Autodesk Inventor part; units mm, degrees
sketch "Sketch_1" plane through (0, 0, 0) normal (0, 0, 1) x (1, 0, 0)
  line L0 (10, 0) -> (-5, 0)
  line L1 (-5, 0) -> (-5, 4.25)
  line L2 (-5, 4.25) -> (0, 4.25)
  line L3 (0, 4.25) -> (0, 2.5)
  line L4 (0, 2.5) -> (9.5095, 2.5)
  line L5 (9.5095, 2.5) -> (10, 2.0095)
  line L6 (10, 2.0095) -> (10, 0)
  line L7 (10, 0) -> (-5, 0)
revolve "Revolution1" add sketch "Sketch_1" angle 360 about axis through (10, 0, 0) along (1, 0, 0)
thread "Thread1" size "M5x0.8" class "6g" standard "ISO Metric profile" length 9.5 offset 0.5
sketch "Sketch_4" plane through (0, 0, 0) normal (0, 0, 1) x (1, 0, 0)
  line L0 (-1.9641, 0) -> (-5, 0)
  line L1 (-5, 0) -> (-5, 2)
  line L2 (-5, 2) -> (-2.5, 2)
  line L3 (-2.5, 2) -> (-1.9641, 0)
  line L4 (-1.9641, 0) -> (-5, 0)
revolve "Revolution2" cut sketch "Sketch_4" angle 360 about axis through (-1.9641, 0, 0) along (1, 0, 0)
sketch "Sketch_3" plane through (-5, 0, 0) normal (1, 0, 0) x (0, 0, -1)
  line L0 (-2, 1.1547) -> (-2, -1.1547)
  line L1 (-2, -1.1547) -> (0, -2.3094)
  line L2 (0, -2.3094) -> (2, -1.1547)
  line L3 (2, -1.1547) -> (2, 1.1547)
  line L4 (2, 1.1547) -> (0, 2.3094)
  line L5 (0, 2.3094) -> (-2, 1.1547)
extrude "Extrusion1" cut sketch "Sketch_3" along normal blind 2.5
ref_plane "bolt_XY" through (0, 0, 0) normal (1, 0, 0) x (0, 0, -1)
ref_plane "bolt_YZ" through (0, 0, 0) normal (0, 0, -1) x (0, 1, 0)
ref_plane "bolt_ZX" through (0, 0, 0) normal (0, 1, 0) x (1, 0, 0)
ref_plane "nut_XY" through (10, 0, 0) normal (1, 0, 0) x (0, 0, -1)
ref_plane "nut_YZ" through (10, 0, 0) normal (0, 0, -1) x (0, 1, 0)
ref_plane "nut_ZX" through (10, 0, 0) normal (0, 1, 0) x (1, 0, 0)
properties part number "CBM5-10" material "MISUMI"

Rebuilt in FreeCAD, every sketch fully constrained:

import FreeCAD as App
import Part
import Sketcher
from FreeCAD import Vector
Q = App.Units.Quantity

doc = App.newDocument("Part")
params = doc.addObject("Spreadsheet::Sheet", "Params")
for row, (alias, value) in enumerate([
    ("sketch1_width", "15 mm"),
    ("sketch1_width2", "5 mm"),
    ("sketch1_height", "1.75 mm"),
    ("sketch1_height2", "4.25 mm"),
    ("revolution_angle", "360 deg"),
    ("sketch2_height", "2 mm"),
    ("sketch2_width", "2.5 mm"),
    ("groove_angle", "360 deg"),
    ("pocket1_length", "2.5 mm"),
], start=1):
    params.set(f"A{row}", alias)
    params.set(f"B{row}", "=" + value)
    params.setAlias(f"B{row}", alias)

body = doc.addObject("PartDesign::Body", "Body")

sketch1 = body.newObject("Sketcher::SketchObject", "Sketch")
sketch1.AttachmentSupport = (doc.getObject("XY_Plane"), [""])
sketch1.MapMode = "FlatFace"
sketch1.addGeometry([
    Part.LineSegment(Vector(-5, 0, 0), Vector(10, 0, 0)),
    Part.LineSegment(Vector(10, 0, 0), Vector(10, 2, 0)),
    Part.LineSegment(Vector(10, 2, 0), Vector(9.5, 2.5, 0)),
    Part.LineSegment(Vector(9.5, 2.5, 0), Vector(0, 2.5, 0)),
    Part.LineSegment(Vector(0, 2.5, 0), Vector(0, 4.2, 0)),
    Part.LineSegment(Vector(0, 4.2, 0), Vector(-5, 4.2, 0)),
    Part.LineSegment(Vector(-5, 4.2, 0), Vector(-5, 0, 0)),
], False)
sketch1.addConstraint([
    Sketcher.Constraint("Coincident", 0, 2, 1, 1),
    Sketcher.Constraint("Coincident", 1, 2, 2, 1),
    Sketcher.Constraint("Coincident", 2, 2, 3, 1),
    Sketcher.Constraint("Coincident", 3, 2, 4, 1),
    Sketcher.Constraint("Coincident", 4, 2, 5, 1),
    Sketcher.Constraint("Coincident", 5, 2, 6, 1),
    Sketcher.Constraint("Coincident", 6, 2, 0, 1),
    Sketcher.Constraint("Horizontal", 0),
    Sketcher.Constraint("Vertical", 1),
    Sketcher.Constraint("Horizontal", 3),
    Sketcher.Constraint("Vertical", 4),
    Sketcher.Constraint("Horizontal", 5),
    Sketcher.Constraint("Vertical", 6),
    Sketcher.Constraint("PointOnObject", 0, 2, -1),
    Sketcher.Constraint("PointOnObject", 3, 2, -2),
    Sketcher.Constraint("DistanceX", 0, 1, 0, 2, Q("15 mm")),
    Sketcher.Constraint("DistanceX", 5, 2, 5, 1, Q("5 mm")),
    Sketcher.Constraint("Angle", 2, Q("135 deg")),
    Sketcher.Constraint("DistanceY", 4, 1, 4, 2, Q("1.75 mm")),
    Sketcher.Constraint("DistanceY", 6, 2, 6, 1, Q("4.25 mm")),
    Sketcher.Constraint("DistanceX", 3, 2, 3, 1, Q("9.5095 mm")),
])
sketch1.setExpression("Constraints[15]", "Params.sketch1_width")
sketch1.setExpression("Constraints[16]", "Params.sketch1_width2")
sketch1.setExpression("Constraints[18]", "Params.sketch1_height")
sketch1.setExpression("Constraints[19]", "Params.sketch1_height2")
revolution = body.newObject("PartDesign::Revolution", "Revolution")
revolution.Profile = sketch1
revolution.ReferenceAxis = (sketch1, ["H_Axis"])
revolution.setExpression("Angle", "Params.revolution_angle")

sketch2 = body.newObject("Sketcher::SketchObject", "Sketch001")
sketch2.AttachmentSupport = (doc.getObject("XY_Plane"), [""])
sketch2.MapMode = "FlatFace"
sketch2.addGeometry([
    Part.LineSegment(Vector(-5, 0, 0), Vector(-2, 0, 0)),
    Part.LineSegment(Vector(-2, 0, 0), Vector(-2.5, 2, 0)),
    Part.LineSegment(Vector(-2.5, 2, 0), Vector(-5, 2, 0)),
    Part.LineSegment(Vector(-5, 2, 0), Vector(-5, 0, 0)),
], False)
sketch2.addConstraint([
    Sketcher.Constraint("Coincident", 0, 2, 1, 1),
    Sketcher.Constraint("Coincident", 1, 2, 2, 1),
    Sketcher.Constraint("Coincident", 2, 2, 3, 1),
    Sketcher.Constraint("Coincident", 3, 2, 0, 1),
    Sketcher.Constraint("Horizontal", 0),
    Sketcher.Constraint("Horizontal", 2),
    Sketcher.Constraint("Vertical", 3),
    Sketcher.Constraint("PointOnObject", 0, 2, -1),
    Sketcher.Constraint("DistanceY", 3, 2, 3, 1, Q("2 mm")),
    Sketcher.Constraint("Angle", 1, Q("105 deg")),
    Sketcher.Constraint("DistanceX", 2, 2, 2, 1, Q("2.5 mm")),
    Sketcher.Constraint("DistanceX", 2, 2, -1, 1, Q("5 mm")),
])
sketch2.setExpression("Constraints[8]", "Params.sketch2_height")
sketch2.setExpression("Constraints[10]", "Params.sketch2_width")
groove = body.newObject("PartDesign::Groove", "Groove")
groove.Profile = sketch2
groove.ReferenceAxis = (sketch2, ["H_Axis"])
groove.setExpression("Angle", "Params.groove_angle")

sketch3 = body.newObject("Sketcher::SketchObject", "Sketch002")
sketch3.AttachmentSupport = (doc.getObject("YZ_Plane"), [""])
sketch3.MapMode = "FlatFace"
sketch3.AttachmentOffset = App.Placement(Vector(0, 0, -5), App.Rotation())
sketch3.addGeometry([
    Part.LineSegment(Vector(2.3, 0, 0), Vector(1.2, 2, 0)),
    Part.LineSegment(Vector(1.2, 2, 0), Vector(-1.2, 2, 0)),
    Part.LineSegment(Vector(-1.2, 2, 0), Vector(-2.3, 0, 0)),
    Part.LineSegment(Vector(-2.3, 0, 0), Vector(-1.2, -2, 0)),
    Part.LineSegment(Vector(-1.2, -2, 0), Vector(1.2, -2, 0)),
    Part.LineSegment(Vector(1.2, -2, 0), Vector(2.3, 0, 0)),
], False)
sketch3.addConstraint([
    Sketcher.Constraint("Coincident", 0, 2, 1, 1),
    Sketcher.Constraint("Coincident", 1, 2, 2, 1),
    Sketcher.Constraint("Coincident", 2, 2, 3, 1),
    Sketcher.Constraint("Coincident", 3, 2, 4, 1),
    Sketcher.Constraint("Coincident", 4, 2, 5, 1),
    Sketcher.Constraint("Coincident", 5, 2, 0, 1),
    Sketcher.Constraint("Horizontal", 1),
    Sketcher.Constraint("Horizontal", 4),
    Sketcher.Constraint("Symmetric", 0, 2, 3, 2, -1, 1),
    Sketcher.Constraint("Symmetric", 2, 2, 5, 2, -1, 1),
    Sketcher.Constraint("PointOnObject", 2, 2, -1),
    Sketcher.Constraint("Parallel", 2, 5),
    Sketcher.Constraint("Vertical", 1, 2, 3, 2),
    Sketcher.Constraint("Angle", 0, Q("120 deg")),
    Sketcher.Constraint("DistanceY", -1, 1, 0, 2, Q("2 mm")),
    Sketcher.Constraint("DistanceX", 1, 2, 1, 1, Q("2.3094 mm")),
])
pocket1 = body.newObject("PartDesign::Pocket", "Pocket")
pocket1.Profile = sketch3
pocket1.setExpression("Length", "Params.pocket1_length")
pocket1.Reversed = True

doc.recompute()
